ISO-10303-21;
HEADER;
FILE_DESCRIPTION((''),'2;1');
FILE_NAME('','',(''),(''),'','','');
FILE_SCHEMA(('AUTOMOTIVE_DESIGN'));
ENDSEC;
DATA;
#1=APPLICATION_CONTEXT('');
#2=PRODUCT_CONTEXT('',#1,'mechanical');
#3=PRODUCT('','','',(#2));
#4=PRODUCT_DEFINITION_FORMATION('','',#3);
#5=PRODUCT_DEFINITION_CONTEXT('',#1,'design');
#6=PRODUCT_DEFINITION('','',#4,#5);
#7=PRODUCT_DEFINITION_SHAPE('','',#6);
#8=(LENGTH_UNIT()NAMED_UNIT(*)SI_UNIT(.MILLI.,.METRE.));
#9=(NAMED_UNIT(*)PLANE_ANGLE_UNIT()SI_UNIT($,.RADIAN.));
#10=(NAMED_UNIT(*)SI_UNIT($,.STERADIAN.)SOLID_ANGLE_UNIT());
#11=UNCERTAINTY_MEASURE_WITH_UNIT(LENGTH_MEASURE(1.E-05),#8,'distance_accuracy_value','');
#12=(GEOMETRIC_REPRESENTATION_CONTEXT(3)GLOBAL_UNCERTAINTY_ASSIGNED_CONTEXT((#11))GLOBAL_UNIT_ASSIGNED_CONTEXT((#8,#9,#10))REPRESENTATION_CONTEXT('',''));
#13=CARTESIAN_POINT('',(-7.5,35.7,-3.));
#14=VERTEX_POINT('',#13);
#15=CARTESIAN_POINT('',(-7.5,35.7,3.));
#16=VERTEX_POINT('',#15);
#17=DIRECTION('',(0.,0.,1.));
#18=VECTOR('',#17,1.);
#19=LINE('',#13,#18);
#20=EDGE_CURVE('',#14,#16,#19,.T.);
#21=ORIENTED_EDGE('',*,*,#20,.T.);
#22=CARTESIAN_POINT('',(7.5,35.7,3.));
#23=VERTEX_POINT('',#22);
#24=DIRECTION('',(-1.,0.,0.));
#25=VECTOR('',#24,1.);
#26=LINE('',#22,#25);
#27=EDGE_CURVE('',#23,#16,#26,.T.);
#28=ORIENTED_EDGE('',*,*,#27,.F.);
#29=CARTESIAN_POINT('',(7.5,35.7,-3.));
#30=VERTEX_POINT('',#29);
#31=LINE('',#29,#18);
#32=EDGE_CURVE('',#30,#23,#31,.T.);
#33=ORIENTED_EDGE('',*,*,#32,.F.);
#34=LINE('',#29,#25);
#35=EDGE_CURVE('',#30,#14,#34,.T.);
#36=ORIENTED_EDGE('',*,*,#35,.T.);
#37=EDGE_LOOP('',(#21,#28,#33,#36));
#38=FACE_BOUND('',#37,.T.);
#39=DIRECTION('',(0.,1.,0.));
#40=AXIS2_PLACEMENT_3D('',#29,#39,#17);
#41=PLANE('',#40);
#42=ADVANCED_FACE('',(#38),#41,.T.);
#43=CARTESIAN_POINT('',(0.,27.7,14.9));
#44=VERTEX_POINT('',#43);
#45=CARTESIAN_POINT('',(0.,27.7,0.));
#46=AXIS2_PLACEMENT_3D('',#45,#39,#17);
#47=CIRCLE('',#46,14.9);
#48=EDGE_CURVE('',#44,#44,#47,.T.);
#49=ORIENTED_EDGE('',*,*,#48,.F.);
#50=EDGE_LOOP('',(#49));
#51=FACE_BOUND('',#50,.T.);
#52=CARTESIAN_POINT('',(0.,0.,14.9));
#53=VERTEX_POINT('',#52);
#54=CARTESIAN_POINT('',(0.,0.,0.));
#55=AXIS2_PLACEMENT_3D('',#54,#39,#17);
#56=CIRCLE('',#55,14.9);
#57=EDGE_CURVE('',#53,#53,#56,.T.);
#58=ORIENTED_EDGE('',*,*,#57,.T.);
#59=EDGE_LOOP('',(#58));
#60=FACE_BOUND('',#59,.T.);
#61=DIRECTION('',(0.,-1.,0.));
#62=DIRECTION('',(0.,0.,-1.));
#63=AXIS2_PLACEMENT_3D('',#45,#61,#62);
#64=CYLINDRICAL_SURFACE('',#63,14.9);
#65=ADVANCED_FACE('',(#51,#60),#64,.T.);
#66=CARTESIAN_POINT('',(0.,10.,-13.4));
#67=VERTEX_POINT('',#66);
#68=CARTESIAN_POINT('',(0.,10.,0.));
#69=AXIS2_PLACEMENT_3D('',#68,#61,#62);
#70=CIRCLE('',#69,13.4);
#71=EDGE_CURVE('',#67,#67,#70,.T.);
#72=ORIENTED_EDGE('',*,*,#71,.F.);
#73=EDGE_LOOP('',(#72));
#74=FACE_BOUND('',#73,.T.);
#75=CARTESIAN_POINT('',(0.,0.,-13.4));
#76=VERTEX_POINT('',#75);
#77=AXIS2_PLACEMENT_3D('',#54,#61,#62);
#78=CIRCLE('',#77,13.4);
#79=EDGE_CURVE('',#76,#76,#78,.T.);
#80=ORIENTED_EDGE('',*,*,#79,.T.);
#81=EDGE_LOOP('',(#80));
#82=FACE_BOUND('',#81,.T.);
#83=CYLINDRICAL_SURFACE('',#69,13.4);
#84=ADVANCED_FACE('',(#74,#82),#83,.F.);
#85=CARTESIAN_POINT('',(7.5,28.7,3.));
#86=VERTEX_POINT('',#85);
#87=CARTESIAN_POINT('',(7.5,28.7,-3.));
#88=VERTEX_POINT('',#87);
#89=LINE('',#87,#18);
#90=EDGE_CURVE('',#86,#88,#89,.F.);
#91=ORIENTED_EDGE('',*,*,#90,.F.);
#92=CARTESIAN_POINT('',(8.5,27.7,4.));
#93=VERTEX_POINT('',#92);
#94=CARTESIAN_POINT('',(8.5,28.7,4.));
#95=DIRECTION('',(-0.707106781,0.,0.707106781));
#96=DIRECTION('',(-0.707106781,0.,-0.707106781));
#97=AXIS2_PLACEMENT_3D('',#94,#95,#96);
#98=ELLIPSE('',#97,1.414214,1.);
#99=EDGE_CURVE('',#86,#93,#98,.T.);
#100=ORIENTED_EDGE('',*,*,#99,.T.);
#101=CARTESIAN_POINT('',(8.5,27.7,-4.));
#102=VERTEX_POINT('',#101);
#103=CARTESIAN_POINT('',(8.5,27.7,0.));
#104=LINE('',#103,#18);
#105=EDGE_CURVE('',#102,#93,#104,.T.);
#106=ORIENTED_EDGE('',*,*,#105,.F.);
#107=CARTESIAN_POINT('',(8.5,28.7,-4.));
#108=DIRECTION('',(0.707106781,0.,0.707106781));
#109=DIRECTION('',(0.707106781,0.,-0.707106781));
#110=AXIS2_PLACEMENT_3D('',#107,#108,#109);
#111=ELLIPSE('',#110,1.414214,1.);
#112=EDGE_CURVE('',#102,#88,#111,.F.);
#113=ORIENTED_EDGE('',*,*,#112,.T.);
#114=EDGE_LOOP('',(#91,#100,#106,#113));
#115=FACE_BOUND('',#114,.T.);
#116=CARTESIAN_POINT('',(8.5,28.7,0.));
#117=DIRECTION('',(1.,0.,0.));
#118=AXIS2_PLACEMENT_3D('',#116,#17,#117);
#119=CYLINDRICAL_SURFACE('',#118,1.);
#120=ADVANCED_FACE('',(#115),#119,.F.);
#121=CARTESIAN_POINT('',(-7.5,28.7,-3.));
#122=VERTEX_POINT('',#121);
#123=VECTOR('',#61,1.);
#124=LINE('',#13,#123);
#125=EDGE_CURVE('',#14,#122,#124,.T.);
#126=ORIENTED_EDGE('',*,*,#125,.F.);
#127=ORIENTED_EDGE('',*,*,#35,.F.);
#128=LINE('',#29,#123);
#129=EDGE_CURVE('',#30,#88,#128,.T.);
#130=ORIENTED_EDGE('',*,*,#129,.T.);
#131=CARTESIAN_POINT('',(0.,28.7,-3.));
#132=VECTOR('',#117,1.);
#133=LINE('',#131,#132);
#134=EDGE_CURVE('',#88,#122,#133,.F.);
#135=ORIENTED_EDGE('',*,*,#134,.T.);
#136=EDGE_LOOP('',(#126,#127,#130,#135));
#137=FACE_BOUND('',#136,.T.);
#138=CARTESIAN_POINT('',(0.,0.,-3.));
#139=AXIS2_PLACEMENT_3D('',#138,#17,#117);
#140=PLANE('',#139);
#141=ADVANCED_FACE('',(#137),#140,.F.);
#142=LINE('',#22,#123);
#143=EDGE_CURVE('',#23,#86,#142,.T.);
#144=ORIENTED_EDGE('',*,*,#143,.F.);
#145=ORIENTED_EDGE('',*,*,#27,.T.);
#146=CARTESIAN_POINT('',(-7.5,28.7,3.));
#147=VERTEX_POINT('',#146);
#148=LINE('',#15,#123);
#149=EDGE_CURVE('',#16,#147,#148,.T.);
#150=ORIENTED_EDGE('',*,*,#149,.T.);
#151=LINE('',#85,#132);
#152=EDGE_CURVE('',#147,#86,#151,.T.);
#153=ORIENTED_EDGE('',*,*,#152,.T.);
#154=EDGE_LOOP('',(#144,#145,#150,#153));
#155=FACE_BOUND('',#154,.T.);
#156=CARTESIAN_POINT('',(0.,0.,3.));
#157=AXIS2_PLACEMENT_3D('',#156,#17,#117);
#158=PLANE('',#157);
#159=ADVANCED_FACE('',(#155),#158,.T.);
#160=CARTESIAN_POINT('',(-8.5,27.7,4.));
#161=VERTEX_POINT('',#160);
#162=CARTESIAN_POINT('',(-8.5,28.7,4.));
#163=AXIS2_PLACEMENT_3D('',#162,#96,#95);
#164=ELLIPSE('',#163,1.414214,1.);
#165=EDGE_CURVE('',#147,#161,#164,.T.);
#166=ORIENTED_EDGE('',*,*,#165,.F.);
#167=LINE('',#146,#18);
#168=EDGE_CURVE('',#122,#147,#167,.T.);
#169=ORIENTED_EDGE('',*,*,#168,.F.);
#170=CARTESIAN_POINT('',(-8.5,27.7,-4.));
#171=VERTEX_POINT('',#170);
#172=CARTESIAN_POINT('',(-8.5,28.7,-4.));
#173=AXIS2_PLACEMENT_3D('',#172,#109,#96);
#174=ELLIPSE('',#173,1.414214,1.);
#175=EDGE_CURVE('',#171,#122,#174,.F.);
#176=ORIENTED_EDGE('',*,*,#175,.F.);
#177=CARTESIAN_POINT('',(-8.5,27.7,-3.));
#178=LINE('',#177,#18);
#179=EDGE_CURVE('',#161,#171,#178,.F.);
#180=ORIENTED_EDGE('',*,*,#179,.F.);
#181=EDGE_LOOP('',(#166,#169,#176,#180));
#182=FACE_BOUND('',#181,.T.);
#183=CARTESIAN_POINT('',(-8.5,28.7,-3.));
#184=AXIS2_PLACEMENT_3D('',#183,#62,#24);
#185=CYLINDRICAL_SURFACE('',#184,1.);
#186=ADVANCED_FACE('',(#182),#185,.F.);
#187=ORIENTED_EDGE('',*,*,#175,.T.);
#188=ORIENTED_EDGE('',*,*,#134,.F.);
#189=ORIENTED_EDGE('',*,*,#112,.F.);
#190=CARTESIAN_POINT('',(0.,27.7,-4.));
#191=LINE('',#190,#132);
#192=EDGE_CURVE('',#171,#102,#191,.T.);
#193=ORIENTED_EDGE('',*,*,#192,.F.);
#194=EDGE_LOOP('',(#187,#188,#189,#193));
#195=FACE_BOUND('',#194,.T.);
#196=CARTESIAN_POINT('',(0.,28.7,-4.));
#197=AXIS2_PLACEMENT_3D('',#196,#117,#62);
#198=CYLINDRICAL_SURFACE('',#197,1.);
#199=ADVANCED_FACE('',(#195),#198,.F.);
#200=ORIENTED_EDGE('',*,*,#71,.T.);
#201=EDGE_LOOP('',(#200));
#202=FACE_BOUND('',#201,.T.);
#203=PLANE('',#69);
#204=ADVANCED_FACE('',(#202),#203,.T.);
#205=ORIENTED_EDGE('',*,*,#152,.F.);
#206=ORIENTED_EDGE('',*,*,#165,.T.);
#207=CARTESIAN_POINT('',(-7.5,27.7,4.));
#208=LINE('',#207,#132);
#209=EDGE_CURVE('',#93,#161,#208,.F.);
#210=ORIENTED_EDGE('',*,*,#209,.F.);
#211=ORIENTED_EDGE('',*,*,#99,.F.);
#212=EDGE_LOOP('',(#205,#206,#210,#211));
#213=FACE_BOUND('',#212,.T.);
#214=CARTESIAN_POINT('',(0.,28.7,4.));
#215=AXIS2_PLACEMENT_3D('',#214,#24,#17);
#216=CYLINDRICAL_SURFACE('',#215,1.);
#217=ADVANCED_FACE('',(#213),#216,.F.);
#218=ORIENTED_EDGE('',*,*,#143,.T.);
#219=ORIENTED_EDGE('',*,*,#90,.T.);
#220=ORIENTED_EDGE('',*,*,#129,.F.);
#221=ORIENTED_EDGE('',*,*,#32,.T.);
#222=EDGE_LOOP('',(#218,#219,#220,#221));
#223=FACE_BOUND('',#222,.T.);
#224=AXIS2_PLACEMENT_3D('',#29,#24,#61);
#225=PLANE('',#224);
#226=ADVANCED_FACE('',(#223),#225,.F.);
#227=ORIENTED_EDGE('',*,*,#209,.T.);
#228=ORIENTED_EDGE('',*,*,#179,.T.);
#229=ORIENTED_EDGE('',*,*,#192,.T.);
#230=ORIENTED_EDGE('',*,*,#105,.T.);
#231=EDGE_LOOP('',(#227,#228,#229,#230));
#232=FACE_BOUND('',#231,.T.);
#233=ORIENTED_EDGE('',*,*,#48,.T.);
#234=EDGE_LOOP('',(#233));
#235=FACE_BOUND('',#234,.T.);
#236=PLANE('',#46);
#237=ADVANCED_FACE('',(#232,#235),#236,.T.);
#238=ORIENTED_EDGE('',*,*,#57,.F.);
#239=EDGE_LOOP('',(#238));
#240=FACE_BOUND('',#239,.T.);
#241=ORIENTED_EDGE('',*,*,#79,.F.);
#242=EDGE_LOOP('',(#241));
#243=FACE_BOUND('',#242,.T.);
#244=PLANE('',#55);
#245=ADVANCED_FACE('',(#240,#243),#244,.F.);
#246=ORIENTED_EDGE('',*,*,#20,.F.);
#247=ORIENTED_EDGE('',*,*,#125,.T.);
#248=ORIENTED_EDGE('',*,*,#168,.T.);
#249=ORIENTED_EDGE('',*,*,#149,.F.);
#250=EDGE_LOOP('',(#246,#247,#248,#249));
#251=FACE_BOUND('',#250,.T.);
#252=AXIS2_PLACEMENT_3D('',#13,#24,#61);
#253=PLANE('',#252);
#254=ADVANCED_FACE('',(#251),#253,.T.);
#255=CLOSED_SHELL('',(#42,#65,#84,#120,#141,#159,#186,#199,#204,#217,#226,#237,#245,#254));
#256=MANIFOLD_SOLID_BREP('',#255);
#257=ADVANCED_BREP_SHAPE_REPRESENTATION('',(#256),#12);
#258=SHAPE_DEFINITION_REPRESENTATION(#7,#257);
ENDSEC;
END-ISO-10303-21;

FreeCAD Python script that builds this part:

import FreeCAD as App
import Part
import Sketcher


def edges_at(feature, points):
    """Names of the edges that pass closest to the given points."""
    edges = feature.Shape.Edges
    near = lambda p: min(range(len(edges)), key=lambda i: edges[i].distToShape(Part.Vertex(*p))[0])
    return sorted({f"Edge{near(p) + 1}" for p in points})

doc = App.newDocument("Part")
params = doc.addObject("Spreadsheet::Sheet", "Params")
for row, (alias, value) in enumerate([
    ("sketch1_diameter", "29.8 mm"),
    ("pad1_length", "27.7 mm"),
    ("sketch2_diameter", "26.8 mm"),
    ("pocket1_length", "10 mm"),
    ("sketch3_width", "15 mm"),
    ("sketch3_height", "8 mm"),
    ("pad2_length", "3 mm"),
    ("pad2_length2", "3 mm"),
    ("fillet_radius", "1 mm"),
], start=1):
    params.set(f"A{row}", alias)
    params.set(f"B{row}", "=" + value)
    params.setAlias(f"B{row}", alias)

body = doc.addObject("PartDesign::Body", "Body")

sketch1 = doc.addObject("Sketcher::SketchObject", "Sketch")
body.addObject(sketch1)
sketch1.AttachmentSupport = (doc.XZ_Plane, [""])
sketch1.MapMode = "FlatFace"
sketch1.addGeometry(Part.Circle(App.Vector(0, 0, 0), App.Vector(0, 0, 1), 15), False)
sketch1.addConstraint(Sketcher.Constraint("Coincident", 0, 3, -1, 1))
sketch1.addConstraint(Sketcher.Constraint("Diameter", 0, 29.8))
sketch1.setExpression("Constraints[1]", "Params.sketch1_diameter")
pad1 = doc.addObject("PartDesign::Pad", "Pad")
body.addObject(pad1)
pad1.Profile = sketch1
pad1.setExpression("Length", "Params.pad1_length")
pad1.Reversed = True

sketch2 = doc.addObject("Sketcher::SketchObject", "Sketch001")
body.addObject(sketch2)
sketch2.AttachmentSupport = (doc.XZ_Plane, [""])
sketch2.MapMode = "FlatFace"
sketch2.addGeometry(Part.Circle(App.Vector(0, 0, 0), App.Vector(0, 0, 1), 13), False)
sketch2.addConstraint(Sketcher.Constraint("Coincident", 0, 3, -1, 1))
sketch2.addConstraint(Sketcher.Constraint("Diameter", 0, 26.8))
sketch2.setExpression("Constraints[1]", "Params.sketch2_diameter")
pocket1 = doc.addObject("PartDesign::Pocket", "Pocket")
body.addObject(pocket1)
pocket1.Profile = sketch2
pocket1.setExpression("Length", "Params.pocket1_length")

sketch3 = doc.addObject("Sketcher::SketchObject", "Sketch002")
body.addObject(sketch3)
sketch3.AttachmentSupport = (doc.XY_Plane, [""])
sketch3.MapMode = "FlatFace"
sketch3.addGeometry(Part.LineSegment(App.Vector(-8, 36, 0), App.Vector(-8, 28, 0)), False)
sketch3.addGeometry(Part.LineSegment(App.Vector(-8, 28, 0), App.Vector(8, 28, 0)), False)
sketch3.addGeometry(Part.LineSegment(App.Vector(8, 28, 0), App.Vector(8, 36, 0)), False)
sketch3.addGeometry(Part.LineSegment(App.Vector(8, 36, 0), App.Vector(-8, 36, 0)), False)
sketch3.addConstraint(Sketcher.Constraint("Coincident", 0, 2, 1, 1))
sketch3.addConstraint(Sketcher.Constraint("Coincident", 1, 2, 2, 1))
sketch3.addConstraint(Sketcher.Constraint("Coincident", 2, 2, 3, 1))
sketch3.addConstraint(Sketcher.Constraint("Coincident", 3, 2, 0, 1))
sketch3.addConstraint(Sketcher.Constraint("Vertical", 0))
sketch3.addConstraint(Sketcher.Constraint("Horizontal", 1))
sketch3.addConstraint(Sketcher.Constraint("Vertical", 2))
sketch3.addConstraint(Sketcher.Constraint("Horizontal", 3))
sketch3.addConstraint(Sketcher.Constraint("DistanceX", 1, 1, 1, 2, 15.0))
sketch3.addConstraint(Sketcher.Constraint("DistanceY", 0, 2, 0, 1, 8.0))
sketch3.addConstraint(Sketcher.Constraint("DistanceX", 0, 2, -1, 1, 7.5))
sketch3.addConstraint(Sketcher.Constraint("DistanceY", -1, 1, 0, 2, 27.7))
sketch3.setExpression("Constraints[8]", "Params.sketch3_width")
sketch3.setExpression("Constraints[9]", "Params.sketch3_height")
pad2 = doc.addObject("PartDesign::Pad", "Pad001")
body.addObject(pad2)
pad2.Profile = sketch3
pad2.Type = "TwoLengths"
pad2.setExpression("Length", "Params.pad2_length")
pad2.setExpression("Length2", "Params.pad2_length2")
doc.recompute()

fillet = doc.addObject("PartDesign::Fillet", "Fillet")
body.addObject(fillet)
fillet.Base = (pad2, edges_at(pad2, [
    (7.5, 27.7, 0),
    (0, 27.7, -3),
    (-7.5, 27.7, 0),
    (0, 27.7, 3),
]))
fillet.setExpression("Radius", "Params.fillet_radius")

doc.recompute()
